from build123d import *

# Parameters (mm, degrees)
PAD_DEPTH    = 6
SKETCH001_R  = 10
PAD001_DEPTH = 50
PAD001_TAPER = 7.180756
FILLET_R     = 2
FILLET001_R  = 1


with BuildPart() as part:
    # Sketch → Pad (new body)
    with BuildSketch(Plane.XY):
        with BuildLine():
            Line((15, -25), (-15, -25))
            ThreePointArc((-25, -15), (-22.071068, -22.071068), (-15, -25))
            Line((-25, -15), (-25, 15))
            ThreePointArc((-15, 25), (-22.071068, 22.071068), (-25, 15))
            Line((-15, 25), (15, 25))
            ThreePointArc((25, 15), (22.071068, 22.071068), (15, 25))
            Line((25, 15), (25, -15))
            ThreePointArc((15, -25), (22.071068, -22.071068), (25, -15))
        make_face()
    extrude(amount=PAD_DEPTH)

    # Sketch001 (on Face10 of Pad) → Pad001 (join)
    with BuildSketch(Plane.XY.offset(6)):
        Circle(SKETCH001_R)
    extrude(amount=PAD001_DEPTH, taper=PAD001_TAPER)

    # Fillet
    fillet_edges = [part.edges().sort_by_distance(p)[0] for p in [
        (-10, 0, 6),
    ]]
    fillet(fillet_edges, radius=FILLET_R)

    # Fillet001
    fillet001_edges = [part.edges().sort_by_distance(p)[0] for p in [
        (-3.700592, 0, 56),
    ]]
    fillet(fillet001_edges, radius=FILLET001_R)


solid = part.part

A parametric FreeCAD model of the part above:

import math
import FreeCAD as App
import Part
import Sketcher


def edges_at(feature, points):
    """Names of the edges that pass closest to the given points."""
    edges = feature.Shape.Edges
    near = lambda p: min(range(len(edges)), key=lambda i: edges[i].distToShape(Part.Vertex(*p))[0])
    return sorted({f"Edge{near(p) + 1}" for p in points})

doc = App.newDocument("Part")
body = doc.addObject("PartDesign::Body", "Body")

sketch1 = body.newObject("Sketcher::SketchObject", "Sketch")
sketch1.AttachmentSupport = (doc.getObject("XY_Plane"), [""])
sketch1.MapMode = "FlatFace"
sketch1.addGeometry([
    Part.LineSegment(App.Vector(-15, -25, 0), App.Vector(15, -25, 0)),
    Part.ArcOfCircle(Part.Circle(App.Vector(15, -15, 0), App.Vector(0, 0, 1), 10), math.radians(-90), math.radians(0)),
    Part.LineSegment(App.Vector(25, -15, 0), App.Vector(25, 15, 0)),
    Part.ArcOfCircle(Part.Circle(App.Vector(15, 15, 0), App.Vector(0, 0, 1), 10), math.radians(0), math.radians(90)),
    Part.LineSegment(App.Vector(15, 25, 0), App.Vector(-15, 25, 0)),
    Part.ArcOfCircle(Part.Circle(App.Vector(-15, 15, 0), App.Vector(0, 0, 1), 10), math.radians(90), math.radians(180)),
    Part.LineSegment(App.Vector(-25, 15, 0), App.Vector(-25, -15, 0)),
    Part.ArcOfCircle(Part.Circle(App.Vector(-15, -15, 0), App.Vector(0, 0, 1), 10), math.radians(180), math.radians(270)),
], False)
sketch1.addConstraint([
    Sketcher.Constraint("Tangent", 0, 2, 1, 1),
    Sketcher.Constraint("Tangent", 1, 2, 2, 1),
    Sketcher.Constraint("Tangent", 2, 2, 3, 1),
    Sketcher.Constraint("Tangent", 3, 2, 4, 1),
    Sketcher.Constraint("Tangent", 4, 2, 5, 1),
    Sketcher.Constraint("Tangent", 5, 2, 6, 1),
    Sketcher.Constraint("Tangent", 6, 2, 7, 1),
    Sketcher.Constraint("Tangent", 7, 2, 0, 1),
    Sketcher.Constraint("Horizontal", 0),
    Sketcher.Constraint("Vertical", 2),
    Sketcher.Constraint("Horizontal", 4),
    Sketcher.Constraint("Vertical", 6),
    Sketcher.Constraint("Equal", 1, 3),
    Sketcher.Constraint("Equal", 3, 5),
    Sketcher.Constraint("Equal", 5, 7),
    Sketcher.Constraint("Symmetric", 1, 3, 5, 3, -1, 1),
    Sketcher.Constraint("Equal", 4, 2),
    Sketcher.Constraint("Radius", 1, 9.999999),
    Sketcher.Constraint("DistanceX", 0, 1, 0, 2, 30.0),
])
pad1 = body.newObject("PartDesign::Pad", "Pad")
pad1.Profile = sketch1
pad1.Length = 6

sketch2 = body.newObject("Sketcher::SketchObject", "Sketch001")
sketch2.AttachmentSupport = (doc.getObject("XY_Plane"), [""])
sketch2.MapMode = "FlatFace"
sketch2.AttachmentOffset = App.Placement(App.Vector(0, 0, 6), App.Rotation())
sketch2.addGeometry(Part.Circle(App.Vector(0, 0, 0), App.Vector(0, 0, 1), 10), False)
sketch2.addConstraint([
    Sketcher.Constraint("Coincident", 0, 3, -1, 1),
    Sketcher.Constraint("Diameter", 0, 20.0),
])
pad2 = body.newObject("PartDesign::Pad", "Pad001")
pad2.Profile = sketch2
pad2.Length = 50
pad2.TaperAngle = -7.180756
doc.recompute()

fillet = body.newObject("PartDesign::Fillet", "Fillet")
fillet.Base = (pad2, edges_at(pad2, [(-10, 0, 6)]))
fillet.Radius = 2
doc.recompute()

fillet2 = body.newObject("PartDesign::Fillet", "Fillet001")
fillet2.Base = (fillet, edges_at(fillet, [(-3.701, 0, 56)]))
fillet2.Radius = 1

doc.recompute()
